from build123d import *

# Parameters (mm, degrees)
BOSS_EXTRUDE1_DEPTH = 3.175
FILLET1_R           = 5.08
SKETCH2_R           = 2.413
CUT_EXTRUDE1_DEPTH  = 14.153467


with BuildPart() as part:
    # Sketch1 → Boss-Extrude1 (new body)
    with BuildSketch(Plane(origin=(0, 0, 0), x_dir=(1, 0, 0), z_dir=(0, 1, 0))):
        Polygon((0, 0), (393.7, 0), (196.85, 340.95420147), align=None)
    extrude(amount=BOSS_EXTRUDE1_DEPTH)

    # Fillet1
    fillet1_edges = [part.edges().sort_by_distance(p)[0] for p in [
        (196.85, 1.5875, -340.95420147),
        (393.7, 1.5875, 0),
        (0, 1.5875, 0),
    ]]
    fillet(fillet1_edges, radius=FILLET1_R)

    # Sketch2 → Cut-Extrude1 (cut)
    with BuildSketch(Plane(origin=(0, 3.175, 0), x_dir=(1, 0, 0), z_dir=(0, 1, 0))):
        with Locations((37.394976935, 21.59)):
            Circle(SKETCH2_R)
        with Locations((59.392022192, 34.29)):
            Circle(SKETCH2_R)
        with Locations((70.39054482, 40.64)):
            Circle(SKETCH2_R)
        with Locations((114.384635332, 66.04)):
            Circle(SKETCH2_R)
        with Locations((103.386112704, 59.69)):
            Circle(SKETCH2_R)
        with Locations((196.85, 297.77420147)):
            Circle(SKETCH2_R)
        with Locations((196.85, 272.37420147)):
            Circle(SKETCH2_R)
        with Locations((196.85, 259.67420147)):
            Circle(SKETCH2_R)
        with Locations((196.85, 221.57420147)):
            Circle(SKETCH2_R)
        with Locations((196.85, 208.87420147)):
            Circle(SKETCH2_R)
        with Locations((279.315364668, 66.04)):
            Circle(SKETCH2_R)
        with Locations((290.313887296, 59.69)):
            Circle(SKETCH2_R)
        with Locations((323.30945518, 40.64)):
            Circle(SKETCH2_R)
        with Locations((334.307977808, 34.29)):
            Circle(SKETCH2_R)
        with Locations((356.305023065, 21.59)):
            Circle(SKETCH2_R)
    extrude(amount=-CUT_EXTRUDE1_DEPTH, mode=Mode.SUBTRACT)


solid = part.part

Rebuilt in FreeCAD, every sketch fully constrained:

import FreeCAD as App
import Part
import Sketcher
Q = App.Units.Quantity


def edges_at(feature, points):
    """Names of the edges that pass closest to the given points."""
    edges = feature.Shape.Edges
    near = lambda p: min(range(len(edges)), key=lambda i: edges[i].distToShape(Part.Vertex(*p))[0])
    return sorted({f"Edge{near(p) + 1}" for p in points})

doc = App.newDocument("Part")
body = doc.addObject("PartDesign::Body", "Body")

sketch1 = body.newObject("Sketcher::SketchObject", "Sketch")
sketch1.AttachmentSupport = (doc.getObject("XZ_Plane"), [""])
sketch1.MapMode = "FlatFace"
sketch1.addGeometry([
    Part.LineSegment(App.Vector(0, 0, 0), App.Vector(394, 0, 0)),
    Part.LineSegment(App.Vector(394, 0, 0), App.Vector(197, -341, 0)),
    Part.LineSegment(App.Vector(197, -341, 0), App.Vector(0, 0, 0)),
], False)
sketch1.addConstraint([
    Sketcher.Constraint("Coincident", 0, 2, 1, 1),
    Sketcher.Constraint("Coincident", 1, 2, 2, 1),
    Sketcher.Constraint("Coincident", 2, 2, 0, 1),
    Sketcher.Constraint("Horizontal", 0),
    Sketcher.Constraint("Coincident", 2, 2, -1, 1),
    Sketcher.Constraint("Equal", 1, 2),
    Sketcher.Constraint("DistanceX", 0, 1, 0, 2, Q("15.5 in")),
    Sketcher.Constraint("Angle", 1, Q("-120 deg")),
])
pad1 = body.newObject("PartDesign::Pad", "Pad")
pad1.Profile = sketch1
pad1.Length = Q("0.125 in")
pad1.Reversed = True
doc.recompute()

fillet = body.newObject("PartDesign::Fillet", "Fillet")
fillet.Base = (pad1, edges_at(pad1, [(196.85, 1.587, -340.954), (393.7, 1.587, 0), (0, 1.587, 0)]))
fillet.Radius = Q("0.2 in")

sketch2 = body.newObject("Sketcher::SketchObject", "Sketch001")
sketch2.AttachmentSupport = (doc.getObject("XZ_Plane"), [""])
sketch2.MapMode = "FlatFace"
sketch2.AttachmentOffset = App.Placement(App.Vector(0, 0, -0.125 * 25.4), App.Rotation())
sketch2.addGeometry([
    Part.Circle(App.Vector(37.4, -21.6, 0), App.Vector(0, 0, 1), 2.4),
    Part.Circle(App.Vector(59.4, -34.3, 0), App.Vector(0, 0, 1), 2.4),
    Part.Circle(App.Vector(70.4, -40.6, 0), App.Vector(0, 0, 1), 2.4),
    Part.Circle(App.Vector(114.4, -66, 0), App.Vector(0, 0, 1), 2.4),
    Part.Circle(App.Vector(103.4, -59.7, 0), App.Vector(0, 0, 1), 2.4),
    Part.Circle(App.Vector(196.8, -297.8, 0), App.Vector(0, 0, 1), 2.4),
    Part.Circle(App.Vector(196.8, -272.4, 0), App.Vector(0, 0, 1), 2.4),
    Part.Circle(App.Vector(196.8, -259.7, 0), App.Vector(0, 0, 1), 2.4),
    Part.Circle(App.Vector(196.8, -221.6, 0), App.Vector(0, 0, 1), 2.4),
    Part.Circle(App.Vector(196.8, -208.9, 0), App.Vector(0, 0, 1), 2.4),
    Part.Circle(App.Vector(279.3, -66, 0), App.Vector(0, 0, 1), 2.4),
    Part.Circle(App.Vector(290.3, -59.7, 0), App.Vector(0, 0, 1), 2.4),
    Part.Circle(App.Vector(323.3, -40.6, 0), App.Vector(0, 0, 1), 2.4),
    Part.Circle(App.Vector(334.3, -34.3, 0), App.Vector(0, 0, 1), 2.4),
    Part.Circle(App.Vector(356.3, -21.6, 0), App.Vector(0, 0, 1), 2.4),
], False)
sketch2.addConstraint([
    Sketcher.Constraint("Equal", 0, 1),
    Sketcher.Constraint("Equal", 1, 2),
    Sketcher.Constraint("Equal", 2, 3),
    Sketcher.Constraint("Equal", 3, 4),
    Sketcher.Constraint("Equal", 4, 5),
    Sketcher.Constraint("Equal", 5, 6),
    Sketcher.Constraint("Equal", 6, 7),
    Sketcher.Constraint("Equal", 7, 8),
    Sketcher.Constraint("Equal", 8, 9),
    Sketcher.Constraint("Equal", 9, 10),
    Sketcher.Constraint("Equal", 10, 11),
    Sketcher.Constraint("Equal", 11, 12),
    Sketcher.Constraint("Equal", 12, 13),
    Sketcher.Constraint("Equal", 13, 14),
    Sketcher.Constraint("Horizontal", 3, 3, 10, 3),
    Sketcher.Constraint("Horizontal", 4, 3, 11, 3),
    Sketcher.Constraint("Horizontal", 2, 3, 12, 3),
    Sketcher.Constraint("Horizontal", 1, 3, 13, 3),
    Sketcher.Constraint("Horizontal", 0, 3, 14, 3),
    Sketcher.Constraint("Vertical", 5, 3, 6, 3),
    Sketcher.Constraint("Vertical", 6, 3, 7, 3),
    Sketcher.Constraint("Vertical", 7, 3, 8, 3),
    Sketcher.Constraint("Vertical", 8, 3, 9, 3),
    Sketcher.Constraint("Diameter", 0, Q("0.19 in")),
    Sketcher.Constraint("DistanceY", 3, 3, 2, 3, Q("1 in")),
    Sketcher.Constraint("DistanceY", 4, 3, 1, 3, Q("1 in")),
    Sketcher.Constraint("DistanceY", 5, 3, 6, 3, Q("1 in")),
    Sketcher.Constraint("DistanceY", 6, 3, 8, 3, Q("2 in")),
    Sketcher.Constraint("DistanceY", 7, 3, 9, 3, Q("2 in")),
    Sketcher.Constraint("DistanceY", 2, 3, -1, 1, Q("1.6 in")),
    Sketcher.Constraint("DistanceY", 1, 3, 0, 3, Q("0.5 in")),
    Sketcher.Constraint("DistanceY", 6, 3, 7, 3, Q("0.5 in")),
    Sketcher.Constraint("DistanceY", 0, 3, -1, 1, Q("0.85 in")),
    Sketcher.Constraint("DistanceX", -1, 1, 5, 3, Q("7.75 in")),
    Sketcher.Constraint("DistanceY", 5, 3, -1, 1, Q("297.774201 mm")),
    Sketcher.Constraint("DistanceX", 2, 3, 3, 3, Q("43.994091 mm")),
    Sketcher.Constraint("DistanceX", 0, 3, 3, 3, Q("76.989658 mm")),
    Sketcher.Constraint("DistanceX", 1, 3, 4, 3, Q("43.994091 mm")),
    Sketcher.Constraint("DistanceX", 3, 3, 10, 3, Q("164.930729 mm")),
    Sketcher.Constraint("DistanceX", 4, 3, 10, 3, Q("175.929252 mm")),
    Sketcher.Constraint("DistanceX", 3, 3, 11, 3, Q("175.929252 mm")),
    Sketcher.Constraint("DistanceX", 10, 3, 12, 3, Q("43.994091 mm")),
    Sketcher.Constraint("DistanceX", 11, 3, 13, 3, Q("43.994091 mm")),
    Sketcher.Constraint("DistanceX", 10, 3, 14, 3, Q("76.989658 mm")),
    Sketcher.Constraint("DistanceX", -1, 1, 0, 3, Q("37.394977 mm")),
])
pocket1 = body.newObject("PartDesign::Pocket", "Pocket")
pocket1.Profile = sketch2
pocket1.Length = 14.153467
pocket1.Reversed = True

doc.recompute()
